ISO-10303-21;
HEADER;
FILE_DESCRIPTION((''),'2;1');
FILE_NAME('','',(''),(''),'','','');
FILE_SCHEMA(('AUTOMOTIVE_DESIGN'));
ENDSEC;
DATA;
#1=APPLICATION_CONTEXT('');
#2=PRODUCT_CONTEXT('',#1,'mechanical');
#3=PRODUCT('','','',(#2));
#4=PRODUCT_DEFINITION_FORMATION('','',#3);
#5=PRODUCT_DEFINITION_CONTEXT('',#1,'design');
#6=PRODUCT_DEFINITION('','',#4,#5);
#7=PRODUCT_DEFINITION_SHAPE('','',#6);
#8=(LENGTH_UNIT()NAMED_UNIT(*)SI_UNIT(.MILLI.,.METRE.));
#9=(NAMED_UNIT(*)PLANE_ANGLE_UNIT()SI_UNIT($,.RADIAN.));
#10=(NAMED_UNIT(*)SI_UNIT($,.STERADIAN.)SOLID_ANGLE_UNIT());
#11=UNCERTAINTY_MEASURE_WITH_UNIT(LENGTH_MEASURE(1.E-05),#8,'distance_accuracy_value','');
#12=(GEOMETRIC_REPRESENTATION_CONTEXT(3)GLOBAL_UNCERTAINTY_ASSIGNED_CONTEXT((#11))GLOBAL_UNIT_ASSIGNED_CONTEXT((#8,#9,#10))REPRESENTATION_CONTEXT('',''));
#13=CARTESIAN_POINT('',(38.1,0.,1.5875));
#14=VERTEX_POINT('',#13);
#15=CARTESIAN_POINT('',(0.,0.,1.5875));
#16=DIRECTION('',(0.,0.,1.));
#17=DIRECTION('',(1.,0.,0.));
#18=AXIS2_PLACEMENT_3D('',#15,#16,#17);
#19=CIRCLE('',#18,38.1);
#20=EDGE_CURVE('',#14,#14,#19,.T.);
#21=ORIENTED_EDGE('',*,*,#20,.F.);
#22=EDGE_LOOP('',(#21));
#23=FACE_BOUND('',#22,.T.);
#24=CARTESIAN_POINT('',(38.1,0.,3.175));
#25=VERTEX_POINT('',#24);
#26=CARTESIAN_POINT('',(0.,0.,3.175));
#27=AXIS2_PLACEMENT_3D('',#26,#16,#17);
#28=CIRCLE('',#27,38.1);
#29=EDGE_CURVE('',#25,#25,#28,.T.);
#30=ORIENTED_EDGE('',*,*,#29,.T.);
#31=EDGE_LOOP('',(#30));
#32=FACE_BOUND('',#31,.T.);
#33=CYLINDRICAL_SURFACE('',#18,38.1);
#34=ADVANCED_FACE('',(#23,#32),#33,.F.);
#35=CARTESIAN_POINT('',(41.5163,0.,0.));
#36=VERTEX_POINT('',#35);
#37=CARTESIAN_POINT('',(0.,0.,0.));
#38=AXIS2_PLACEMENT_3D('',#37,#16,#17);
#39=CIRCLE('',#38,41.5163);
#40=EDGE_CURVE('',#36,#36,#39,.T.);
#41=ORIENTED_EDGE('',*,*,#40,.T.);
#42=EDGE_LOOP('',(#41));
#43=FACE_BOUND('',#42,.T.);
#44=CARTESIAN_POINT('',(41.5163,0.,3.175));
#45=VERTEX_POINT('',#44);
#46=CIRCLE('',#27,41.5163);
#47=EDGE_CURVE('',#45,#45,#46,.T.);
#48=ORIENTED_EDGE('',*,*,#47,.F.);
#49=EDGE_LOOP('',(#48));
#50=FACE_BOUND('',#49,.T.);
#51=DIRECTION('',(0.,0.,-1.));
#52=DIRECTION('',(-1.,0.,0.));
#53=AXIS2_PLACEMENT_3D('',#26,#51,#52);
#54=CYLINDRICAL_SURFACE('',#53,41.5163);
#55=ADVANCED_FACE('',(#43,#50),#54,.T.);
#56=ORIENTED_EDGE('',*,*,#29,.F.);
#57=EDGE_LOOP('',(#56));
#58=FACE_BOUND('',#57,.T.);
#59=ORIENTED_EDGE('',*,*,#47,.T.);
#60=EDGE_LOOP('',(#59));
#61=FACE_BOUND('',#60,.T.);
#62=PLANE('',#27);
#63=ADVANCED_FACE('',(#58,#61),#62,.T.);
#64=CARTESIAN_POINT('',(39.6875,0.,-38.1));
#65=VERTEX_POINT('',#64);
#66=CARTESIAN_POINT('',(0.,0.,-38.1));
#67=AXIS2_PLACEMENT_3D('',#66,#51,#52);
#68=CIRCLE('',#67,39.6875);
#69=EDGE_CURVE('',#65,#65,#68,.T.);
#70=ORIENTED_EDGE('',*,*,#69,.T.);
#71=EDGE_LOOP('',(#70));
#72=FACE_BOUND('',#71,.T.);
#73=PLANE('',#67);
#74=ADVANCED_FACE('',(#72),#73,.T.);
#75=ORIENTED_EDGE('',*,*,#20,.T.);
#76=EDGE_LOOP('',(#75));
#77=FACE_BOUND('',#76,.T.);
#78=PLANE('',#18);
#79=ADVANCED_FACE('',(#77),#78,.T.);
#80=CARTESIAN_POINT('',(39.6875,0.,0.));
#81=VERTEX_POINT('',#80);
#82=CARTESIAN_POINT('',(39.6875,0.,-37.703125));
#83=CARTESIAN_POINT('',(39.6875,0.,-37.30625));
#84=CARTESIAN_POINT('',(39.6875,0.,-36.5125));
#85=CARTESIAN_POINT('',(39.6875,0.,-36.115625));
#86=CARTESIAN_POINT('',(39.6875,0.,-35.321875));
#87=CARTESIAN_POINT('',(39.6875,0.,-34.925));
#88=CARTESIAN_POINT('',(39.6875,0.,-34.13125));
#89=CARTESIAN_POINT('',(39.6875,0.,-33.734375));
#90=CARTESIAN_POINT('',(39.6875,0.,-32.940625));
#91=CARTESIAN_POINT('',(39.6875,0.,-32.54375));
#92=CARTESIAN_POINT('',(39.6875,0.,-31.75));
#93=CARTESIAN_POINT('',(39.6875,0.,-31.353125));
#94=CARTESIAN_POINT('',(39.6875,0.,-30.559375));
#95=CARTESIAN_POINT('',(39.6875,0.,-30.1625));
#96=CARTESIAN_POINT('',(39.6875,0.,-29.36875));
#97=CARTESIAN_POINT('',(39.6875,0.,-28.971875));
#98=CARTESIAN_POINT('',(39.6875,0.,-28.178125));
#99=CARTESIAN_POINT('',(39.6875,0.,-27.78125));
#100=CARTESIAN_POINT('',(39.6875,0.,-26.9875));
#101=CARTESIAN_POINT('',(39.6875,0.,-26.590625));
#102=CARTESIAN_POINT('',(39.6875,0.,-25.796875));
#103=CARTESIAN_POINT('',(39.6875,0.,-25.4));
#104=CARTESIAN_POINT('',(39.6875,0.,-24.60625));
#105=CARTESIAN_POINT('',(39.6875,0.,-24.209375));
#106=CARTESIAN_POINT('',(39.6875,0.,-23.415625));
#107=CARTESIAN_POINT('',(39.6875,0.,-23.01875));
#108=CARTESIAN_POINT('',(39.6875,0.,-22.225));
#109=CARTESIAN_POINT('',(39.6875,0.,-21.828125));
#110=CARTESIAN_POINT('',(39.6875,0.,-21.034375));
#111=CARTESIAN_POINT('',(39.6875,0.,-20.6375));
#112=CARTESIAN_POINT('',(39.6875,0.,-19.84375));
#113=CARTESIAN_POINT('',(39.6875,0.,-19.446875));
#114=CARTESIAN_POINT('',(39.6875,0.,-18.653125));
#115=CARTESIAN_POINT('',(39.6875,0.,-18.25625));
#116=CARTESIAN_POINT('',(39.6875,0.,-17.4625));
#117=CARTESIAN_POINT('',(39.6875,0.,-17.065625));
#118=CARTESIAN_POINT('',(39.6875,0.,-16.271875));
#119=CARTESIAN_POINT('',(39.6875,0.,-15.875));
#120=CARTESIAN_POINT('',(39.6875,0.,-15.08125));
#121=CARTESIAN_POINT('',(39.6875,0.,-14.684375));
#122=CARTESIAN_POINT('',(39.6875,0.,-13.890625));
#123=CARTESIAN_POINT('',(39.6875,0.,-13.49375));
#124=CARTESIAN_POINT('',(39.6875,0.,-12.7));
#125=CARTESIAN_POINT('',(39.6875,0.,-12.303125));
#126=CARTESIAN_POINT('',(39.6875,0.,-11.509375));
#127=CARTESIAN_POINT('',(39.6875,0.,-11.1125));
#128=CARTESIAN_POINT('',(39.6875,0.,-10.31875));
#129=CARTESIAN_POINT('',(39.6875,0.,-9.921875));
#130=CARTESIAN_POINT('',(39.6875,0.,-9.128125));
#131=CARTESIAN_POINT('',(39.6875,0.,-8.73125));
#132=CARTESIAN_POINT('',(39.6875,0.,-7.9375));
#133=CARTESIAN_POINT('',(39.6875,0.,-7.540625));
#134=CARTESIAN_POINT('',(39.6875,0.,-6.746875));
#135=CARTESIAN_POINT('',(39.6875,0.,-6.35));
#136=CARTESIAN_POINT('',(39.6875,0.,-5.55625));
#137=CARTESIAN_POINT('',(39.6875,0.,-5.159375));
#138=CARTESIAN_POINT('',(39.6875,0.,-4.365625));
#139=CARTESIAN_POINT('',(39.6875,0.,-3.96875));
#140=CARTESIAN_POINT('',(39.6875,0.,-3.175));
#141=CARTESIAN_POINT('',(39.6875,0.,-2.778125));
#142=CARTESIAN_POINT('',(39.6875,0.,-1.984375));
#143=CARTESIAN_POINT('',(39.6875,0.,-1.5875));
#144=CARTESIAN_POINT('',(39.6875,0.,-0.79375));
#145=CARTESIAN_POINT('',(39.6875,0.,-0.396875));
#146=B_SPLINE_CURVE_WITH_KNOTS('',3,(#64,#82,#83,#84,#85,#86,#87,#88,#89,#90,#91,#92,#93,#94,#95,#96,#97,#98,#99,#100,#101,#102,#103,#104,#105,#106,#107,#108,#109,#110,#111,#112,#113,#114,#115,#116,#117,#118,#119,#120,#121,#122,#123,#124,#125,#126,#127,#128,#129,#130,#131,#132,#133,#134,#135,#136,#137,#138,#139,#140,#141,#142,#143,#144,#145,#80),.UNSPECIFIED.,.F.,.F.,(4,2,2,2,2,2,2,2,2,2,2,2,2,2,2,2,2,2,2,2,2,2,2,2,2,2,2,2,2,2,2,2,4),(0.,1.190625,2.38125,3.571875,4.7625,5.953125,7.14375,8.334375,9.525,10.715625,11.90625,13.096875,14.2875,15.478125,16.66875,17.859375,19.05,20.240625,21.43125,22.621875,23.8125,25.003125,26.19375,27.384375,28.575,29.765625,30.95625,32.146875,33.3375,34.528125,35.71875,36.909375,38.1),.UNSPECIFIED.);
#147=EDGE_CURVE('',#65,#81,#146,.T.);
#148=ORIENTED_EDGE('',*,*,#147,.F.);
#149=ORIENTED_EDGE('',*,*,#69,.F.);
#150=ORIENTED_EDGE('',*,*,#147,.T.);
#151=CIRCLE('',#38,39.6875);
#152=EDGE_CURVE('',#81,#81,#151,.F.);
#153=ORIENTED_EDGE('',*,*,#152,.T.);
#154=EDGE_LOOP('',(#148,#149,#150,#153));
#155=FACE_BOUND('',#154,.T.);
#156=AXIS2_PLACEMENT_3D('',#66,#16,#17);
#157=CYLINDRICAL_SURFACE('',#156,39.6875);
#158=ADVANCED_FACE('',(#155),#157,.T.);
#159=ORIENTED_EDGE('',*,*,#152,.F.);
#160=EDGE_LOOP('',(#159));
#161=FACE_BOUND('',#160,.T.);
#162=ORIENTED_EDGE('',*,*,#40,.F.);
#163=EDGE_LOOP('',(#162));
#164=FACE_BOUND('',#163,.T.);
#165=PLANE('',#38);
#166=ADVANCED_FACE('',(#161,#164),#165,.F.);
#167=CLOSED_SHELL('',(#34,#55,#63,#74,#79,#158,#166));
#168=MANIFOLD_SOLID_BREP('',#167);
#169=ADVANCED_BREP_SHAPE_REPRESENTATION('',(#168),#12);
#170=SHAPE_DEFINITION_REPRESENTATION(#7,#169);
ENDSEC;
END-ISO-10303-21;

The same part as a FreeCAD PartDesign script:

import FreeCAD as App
import Part
import Sketcher
Q = App.Units.Quantity

doc = App.newDocument("Part")
params = doc.addObject("Spreadsheet::Sheet", "Params")
for row, (alias, value) in enumerate([
    ("sketch1_diameter", "3.269 in"),
    ("pad1_length", "0.125 in"),
    ("sketch2_diameter", "3.125 in"),
    ("pad2_length", "1.5 in"),
    ("sketch3_diameter", "3 in"),
    ("pocket1_length", "0.0625 in"),
], start=1):
    params.set(f"A{row}", alias)
    params.set(f"B{row}", "=" + value)
    params.setAlias(f"B{row}", alias)

body = doc.addObject("PartDesign::Body", "Body")

# Sketch on XY plane
sketch1 = body.newObject("Sketcher::SketchObject", "Sketch")
sketch1.AttachmentSupport = (doc.getObject("XY_Plane"), [""])
sketch1.MapMode = "FlatFace"
sketch1.addGeometry(Part.Circle(App.Vector(0, 0, 0), App.Vector(0, 0, 1), 42), False)
sketch1.addConstraint(Sketcher.Constraint("Coincident", 0, 3, -1, 1))
sketch1.addConstraint(Sketcher.Constraint("Diameter", 0, Q("3.269 in")))
sketch1.setExpression("Constraints[1]", "Params.sketch1_diameter")
pad1 = body.newObject("PartDesign::Pad", "Pad")
pad1.Profile = sketch1
pad1.setExpression("Length", "Params.pad1_length")

# Sketch on XY plane
sketch2 = body.newObject("Sketcher::SketchObject", "Sketch001")
sketch2.AttachmentSupport = (doc.getObject("XY_Plane"), [""])
sketch2.MapMode = "FlatFace"
sketch2.addGeometry(Part.Circle(App.Vector(0, 0, 0), App.Vector(0, 0, 1), 40), False)
sketch2.addConstraint(Sketcher.Constraint("Coincident", 0, 3, -1, 1))
sketch2.addConstraint(Sketcher.Constraint("Diameter", 0, Q("3.125 in")))
sketch2.setExpression("Constraints[1]", "Params.sketch2_diameter")
pad2 = body.newObject("PartDesign::Pad", "Pad001")
pad2.Profile = sketch2
pad2.setExpression("Length", "Params.pad2_length")
pad2.Reversed = True

# Sketch on XY plane
sketch3 = body.newObject("Sketcher::SketchObject", "Sketch002")
sketch3.AttachmentSupport = (doc.getObject("XY_Plane"), [""])
sketch3.MapMode = "FlatFace"
sketch3.AttachmentOffset = App.Placement(App.Vector(0, 0, 0.125 * 25.4), App.Rotation())
sketch3.addGeometry(Part.Circle(App.Vector(0, 0, 0), App.Vector(0, 0, 1), 38), False)
sketch3.addConstraint(Sketcher.Constraint("Coincident", 0, 3, -1, 1))
sketch3.addConstraint(Sketcher.Constraint("Diameter", 0, Q("3 in")))
sketch3.setExpression("Constraints[1]", "Params.sketch3_diameter")
pocket1 = body.newObject("PartDesign::Pocket", "Pocket")
pocket1.Profile = sketch3
pocket1.setExpression("Length", "Params.pocket1_length")

doc.recompute()
